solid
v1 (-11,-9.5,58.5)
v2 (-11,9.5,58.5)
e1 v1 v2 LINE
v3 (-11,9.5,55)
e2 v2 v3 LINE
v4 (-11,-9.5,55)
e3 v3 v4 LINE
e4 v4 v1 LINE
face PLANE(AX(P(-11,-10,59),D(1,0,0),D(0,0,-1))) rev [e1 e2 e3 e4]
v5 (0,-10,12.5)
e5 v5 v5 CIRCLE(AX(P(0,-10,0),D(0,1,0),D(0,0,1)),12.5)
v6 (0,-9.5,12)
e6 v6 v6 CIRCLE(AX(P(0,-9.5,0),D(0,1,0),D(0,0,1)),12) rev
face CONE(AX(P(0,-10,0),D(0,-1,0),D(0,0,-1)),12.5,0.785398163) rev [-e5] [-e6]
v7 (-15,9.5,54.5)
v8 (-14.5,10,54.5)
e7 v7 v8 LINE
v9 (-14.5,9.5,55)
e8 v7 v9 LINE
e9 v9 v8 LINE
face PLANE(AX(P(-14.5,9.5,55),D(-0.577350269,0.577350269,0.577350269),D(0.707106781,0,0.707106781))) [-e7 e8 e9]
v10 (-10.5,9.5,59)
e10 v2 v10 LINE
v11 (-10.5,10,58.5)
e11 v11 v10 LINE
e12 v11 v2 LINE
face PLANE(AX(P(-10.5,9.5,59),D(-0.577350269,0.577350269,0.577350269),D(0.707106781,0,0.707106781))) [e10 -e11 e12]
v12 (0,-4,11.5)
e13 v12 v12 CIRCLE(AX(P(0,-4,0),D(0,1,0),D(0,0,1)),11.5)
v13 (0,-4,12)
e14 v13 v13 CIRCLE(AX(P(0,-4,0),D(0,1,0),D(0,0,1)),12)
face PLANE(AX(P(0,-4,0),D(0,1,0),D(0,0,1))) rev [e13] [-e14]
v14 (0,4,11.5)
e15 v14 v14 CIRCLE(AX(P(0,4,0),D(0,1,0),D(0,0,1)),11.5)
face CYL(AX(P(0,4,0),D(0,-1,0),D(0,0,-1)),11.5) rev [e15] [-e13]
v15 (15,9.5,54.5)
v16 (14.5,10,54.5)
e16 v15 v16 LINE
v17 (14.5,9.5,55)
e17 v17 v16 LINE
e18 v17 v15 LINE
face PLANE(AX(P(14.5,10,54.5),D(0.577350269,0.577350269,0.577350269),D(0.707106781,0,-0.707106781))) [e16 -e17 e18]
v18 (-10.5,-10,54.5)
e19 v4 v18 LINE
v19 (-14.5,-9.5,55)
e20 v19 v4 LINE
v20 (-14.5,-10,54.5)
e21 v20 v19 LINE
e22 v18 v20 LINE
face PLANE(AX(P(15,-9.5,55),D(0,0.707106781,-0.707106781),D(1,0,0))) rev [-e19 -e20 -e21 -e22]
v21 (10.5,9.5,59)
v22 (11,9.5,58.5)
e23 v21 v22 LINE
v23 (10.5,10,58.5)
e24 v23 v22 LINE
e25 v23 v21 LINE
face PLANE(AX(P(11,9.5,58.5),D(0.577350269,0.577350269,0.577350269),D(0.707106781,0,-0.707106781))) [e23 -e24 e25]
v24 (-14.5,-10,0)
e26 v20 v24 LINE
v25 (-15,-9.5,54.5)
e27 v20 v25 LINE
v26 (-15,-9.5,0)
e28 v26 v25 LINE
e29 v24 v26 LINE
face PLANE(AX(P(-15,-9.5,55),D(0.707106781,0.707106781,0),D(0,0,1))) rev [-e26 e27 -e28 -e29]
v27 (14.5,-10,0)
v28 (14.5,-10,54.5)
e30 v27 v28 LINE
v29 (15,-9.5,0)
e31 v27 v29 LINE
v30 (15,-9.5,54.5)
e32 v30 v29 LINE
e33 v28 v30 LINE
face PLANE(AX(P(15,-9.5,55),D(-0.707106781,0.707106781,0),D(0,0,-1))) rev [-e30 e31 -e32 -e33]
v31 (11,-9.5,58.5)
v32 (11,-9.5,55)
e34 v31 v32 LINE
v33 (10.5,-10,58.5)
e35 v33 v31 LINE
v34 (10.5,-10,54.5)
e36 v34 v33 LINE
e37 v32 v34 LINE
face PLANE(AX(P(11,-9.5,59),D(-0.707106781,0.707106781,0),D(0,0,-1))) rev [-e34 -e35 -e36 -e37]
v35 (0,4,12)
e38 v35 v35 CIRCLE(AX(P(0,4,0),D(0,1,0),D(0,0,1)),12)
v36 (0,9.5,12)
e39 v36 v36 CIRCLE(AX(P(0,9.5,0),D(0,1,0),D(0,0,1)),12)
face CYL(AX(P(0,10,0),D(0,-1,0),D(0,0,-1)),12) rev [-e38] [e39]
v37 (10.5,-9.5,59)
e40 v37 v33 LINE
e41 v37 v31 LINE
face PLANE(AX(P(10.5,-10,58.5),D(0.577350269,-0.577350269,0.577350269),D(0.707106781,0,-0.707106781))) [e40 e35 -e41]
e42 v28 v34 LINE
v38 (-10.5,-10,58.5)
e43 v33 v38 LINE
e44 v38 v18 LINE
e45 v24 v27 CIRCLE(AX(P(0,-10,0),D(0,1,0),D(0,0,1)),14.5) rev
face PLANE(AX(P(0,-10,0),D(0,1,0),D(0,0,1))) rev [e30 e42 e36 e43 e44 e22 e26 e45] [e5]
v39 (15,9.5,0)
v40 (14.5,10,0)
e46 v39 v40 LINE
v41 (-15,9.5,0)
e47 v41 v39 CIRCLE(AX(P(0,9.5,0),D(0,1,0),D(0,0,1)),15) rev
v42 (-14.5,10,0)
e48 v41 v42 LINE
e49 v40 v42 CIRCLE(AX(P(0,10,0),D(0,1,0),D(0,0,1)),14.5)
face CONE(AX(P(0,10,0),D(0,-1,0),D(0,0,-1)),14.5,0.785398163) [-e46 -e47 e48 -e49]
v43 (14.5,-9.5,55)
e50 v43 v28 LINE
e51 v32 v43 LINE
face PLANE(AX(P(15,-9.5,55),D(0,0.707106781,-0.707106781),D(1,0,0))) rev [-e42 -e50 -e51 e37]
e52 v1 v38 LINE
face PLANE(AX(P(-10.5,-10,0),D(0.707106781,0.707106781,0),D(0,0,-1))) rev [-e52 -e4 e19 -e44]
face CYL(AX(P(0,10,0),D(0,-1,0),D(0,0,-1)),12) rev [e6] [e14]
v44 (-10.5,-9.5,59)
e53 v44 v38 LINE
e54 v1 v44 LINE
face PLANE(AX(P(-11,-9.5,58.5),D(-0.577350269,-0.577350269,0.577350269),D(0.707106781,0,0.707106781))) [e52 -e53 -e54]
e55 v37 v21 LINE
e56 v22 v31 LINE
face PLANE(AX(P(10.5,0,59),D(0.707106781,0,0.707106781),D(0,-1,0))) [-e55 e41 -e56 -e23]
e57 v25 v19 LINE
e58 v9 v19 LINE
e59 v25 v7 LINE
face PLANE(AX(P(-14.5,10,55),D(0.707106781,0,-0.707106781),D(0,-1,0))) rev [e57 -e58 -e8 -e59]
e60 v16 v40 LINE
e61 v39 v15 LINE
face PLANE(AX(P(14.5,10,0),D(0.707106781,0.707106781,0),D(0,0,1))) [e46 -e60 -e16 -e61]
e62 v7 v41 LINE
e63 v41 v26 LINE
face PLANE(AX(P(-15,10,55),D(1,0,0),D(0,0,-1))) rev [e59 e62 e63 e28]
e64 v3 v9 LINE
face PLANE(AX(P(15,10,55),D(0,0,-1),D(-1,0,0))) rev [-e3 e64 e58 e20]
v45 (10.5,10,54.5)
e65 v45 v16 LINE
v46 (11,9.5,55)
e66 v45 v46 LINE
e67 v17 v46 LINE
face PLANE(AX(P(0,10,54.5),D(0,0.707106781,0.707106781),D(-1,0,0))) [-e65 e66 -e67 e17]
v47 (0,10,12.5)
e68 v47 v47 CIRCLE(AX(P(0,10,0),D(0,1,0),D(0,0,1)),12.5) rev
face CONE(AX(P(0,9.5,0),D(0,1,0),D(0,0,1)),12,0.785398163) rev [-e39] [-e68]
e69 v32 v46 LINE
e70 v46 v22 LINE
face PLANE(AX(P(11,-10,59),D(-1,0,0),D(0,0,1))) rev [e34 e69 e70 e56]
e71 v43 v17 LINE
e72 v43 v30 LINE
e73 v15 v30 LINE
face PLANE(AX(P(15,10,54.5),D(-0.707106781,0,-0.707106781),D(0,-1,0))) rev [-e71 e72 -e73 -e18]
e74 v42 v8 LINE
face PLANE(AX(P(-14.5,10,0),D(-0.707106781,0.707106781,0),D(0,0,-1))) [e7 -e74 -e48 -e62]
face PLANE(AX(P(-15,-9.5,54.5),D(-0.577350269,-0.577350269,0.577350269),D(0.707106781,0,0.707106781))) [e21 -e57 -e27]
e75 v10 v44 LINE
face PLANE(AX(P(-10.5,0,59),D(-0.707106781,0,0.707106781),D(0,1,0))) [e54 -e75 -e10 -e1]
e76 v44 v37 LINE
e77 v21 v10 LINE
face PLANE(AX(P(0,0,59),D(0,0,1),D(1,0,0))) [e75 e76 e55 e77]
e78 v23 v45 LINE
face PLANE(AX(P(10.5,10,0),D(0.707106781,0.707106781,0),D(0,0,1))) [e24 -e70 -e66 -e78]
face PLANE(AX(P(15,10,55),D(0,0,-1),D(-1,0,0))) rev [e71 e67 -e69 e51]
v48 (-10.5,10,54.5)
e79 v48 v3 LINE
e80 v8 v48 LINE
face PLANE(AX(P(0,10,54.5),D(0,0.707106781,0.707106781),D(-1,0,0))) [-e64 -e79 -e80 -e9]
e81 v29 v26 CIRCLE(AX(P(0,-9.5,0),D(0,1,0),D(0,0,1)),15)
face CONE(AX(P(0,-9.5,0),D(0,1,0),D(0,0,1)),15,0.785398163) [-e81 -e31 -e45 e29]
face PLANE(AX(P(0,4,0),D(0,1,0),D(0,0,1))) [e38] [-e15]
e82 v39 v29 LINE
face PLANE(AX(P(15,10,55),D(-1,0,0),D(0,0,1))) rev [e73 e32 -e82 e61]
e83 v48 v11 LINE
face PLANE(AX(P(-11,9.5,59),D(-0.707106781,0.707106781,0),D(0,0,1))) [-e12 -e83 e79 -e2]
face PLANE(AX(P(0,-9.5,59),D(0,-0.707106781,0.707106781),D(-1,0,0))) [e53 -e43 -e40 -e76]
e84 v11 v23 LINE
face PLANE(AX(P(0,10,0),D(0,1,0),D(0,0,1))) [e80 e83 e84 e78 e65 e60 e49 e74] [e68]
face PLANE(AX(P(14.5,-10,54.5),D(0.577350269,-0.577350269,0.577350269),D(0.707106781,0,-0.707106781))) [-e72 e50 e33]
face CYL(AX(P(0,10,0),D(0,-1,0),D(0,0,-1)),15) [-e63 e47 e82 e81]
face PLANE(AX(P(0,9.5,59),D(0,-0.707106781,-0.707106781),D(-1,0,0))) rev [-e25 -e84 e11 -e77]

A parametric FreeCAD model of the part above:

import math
import FreeCAD as App
import Part
import Sketcher
from FreeCAD import Vector


def edges_at(feature, points):
    """Names of the edges that pass closest to the given points."""
    edges = feature.Shape.Edges
    near = lambda p: min(range(len(edges)), key=lambda i: edges[i].distToShape(Part.Vertex(*p))[0])
    return sorted({f"Edge{near(p) + 1}" for p in points})


def add_polygon(sketch, points):
    """Adds a closed chain of lines whose ends are joined by coincident constraints."""
    first, n = sketch.GeometryCount, len(points)
    for a, b in zip(points, points[1:] + points[:1]):
        sketch.addGeometry(Part.LineSegment(App.Vector(*a, 0), App.Vector(*b, 0)), False)
    for i in range(n):
        sketch.addConstraint(Sketcher.Constraint("Coincident", first + i, 2, first + (i + 1) % n, 1))

doc = App.newDocument("Part")
body = doc.addObject("PartDesign::Body", "Body")

# Sketch on XZ plane
sketch1 = body.newObject("Sketcher::SketchObject", "Sketch")
sketch1.AttachmentSupport = (doc.getObject("XZ_Plane"), [""])
sketch1.MapMode = "FlatFace"
sketch1.addGeometry(Part.LineSegment(Vector(-15, 55, 0), Vector(15, 55, 0)), False)
sketch1.addGeometry(Part.LineSegment(Vector(15, 55, 0), Vector(15, 0, 0)), False)
sketch1.addGeometry(Part.ArcOfCircle(Part.Circle(Vector(0, 0, 0), Vector(0, 0, 1), 15), math.radians(180), math.radians(360)), False)
sketch1.addGeometry(Part.LineSegment(Vector(-15, 0, 0), Vector(-15, 55, 0)), False)
sketch1.addGeometry(Part.Circle(Vector(0, 0, 0), Vector(0, 0, 1), 12), False)
sketch1.addConstraint(Sketcher.Constraint("Coincident", 0, 2, 1, 1))
sketch1.addConstraint(Sketcher.Constraint("Tangent", 1, 2, 2, 2))
sketch1.addConstraint(Sketcher.Constraint("Tangent", 2, 1, 3, 1))
sketch1.addConstraint(Sketcher.Constraint("Coincident", 3, 2, 0, 1))
sketch1.addConstraint(Sketcher.Constraint("Horizontal", 0))
sketch1.addConstraint(Sketcher.Constraint("Vertical", 1))
sketch1.addConstraint(Sketcher.Constraint("Vertical", 3))
sketch1.addConstraint(Sketcher.Constraint("Coincident", 2, 3, -1, 1))
sketch1.addConstraint(Sketcher.Constraint("Coincident", 4, 3, -1, 1))
sketch1.addConstraint(Sketcher.Constraint("Diameter", 4, 24.0))
sketch1.addConstraint(Sketcher.Constraint("Radius", 2, 15.0))
sketch1.addConstraint(Sketcher.Constraint("DistanceY", 1, 2, 1, 1, 55.0))
pad1 = body.newObject("PartDesign::Pad", "Pad")
pad1.Profile = sketch1
pad1.Length = 20
pad1.Midplane = True

# Sketch on XZ plane
sketch2 = body.newObject("Sketcher::SketchObject", "Sketch001")
sketch2.AttachmentSupport = (doc.getObject("XZ_Plane"), [""])
sketch2.MapMode = "FlatFace"
sketch2.addGeometry(Part.Circle(Vector(0, 0, 0), Vector(0, 0, 1), 12), False)
sketch2.addGeometry(Part.Circle(Vector(0, 0, 0), Vector(0, 0, 1), 12), False)
sketch2.addConstraint(Sketcher.Constraint("Coincident", 0, 3, -1, 1))
sketch2.addConstraint(Sketcher.Constraint("Coincident", 1, 3, -1, 1))
sketch2.addConstraint(Sketcher.Constraint("Diameter", 0, 24.0))
sketch2.addConstraint(Sketcher.Constraint("Diameter", 1, 23.0))
pad2 = body.newObject("PartDesign::Pad", "Pad001")
pad2.Profile = sketch2
pad2.Length = 8
pad2.Midplane = True

# Sketch on XY plane
sketch3 = body.newObject("Sketcher::SketchObject", "Sketch002")
sketch3.AttachmentSupport = (doc.getObject("XY_Plane"), [""])
sketch3.MapMode = "FlatFace"
sketch3.AttachmentOffset = App.Placement(Vector(0, 0, 55), App.Rotation())
add_polygon(sketch3, [(-11, 10), (-11, -10), (11, -10), (11, 10)])  # lines 0-3
sketch3.addConstraint(Sketcher.Constraint("Vertical", 0))
sketch3.addConstraint(Sketcher.Constraint("Horizontal", 1))
sketch3.addConstraint(Sketcher.Constraint("Vertical", 2))
sketch3.addConstraint(Sketcher.Constraint("Horizontal", 3))
sketch3.addConstraint(Sketcher.Constraint("Symmetric", 0, 2, 2, 2, -1, 1))
sketch3.addConstraint(Sketcher.Constraint("DistanceX", 1, 1, 1, 2, 22.0))
sketch3.addConstraint(Sketcher.Constraint("DistanceY", 0, 2, 0, 1, 20.0))
pad3 = body.newObject("PartDesign::Pad", "Pad002")
pad3.Profile = sketch3
pad3.Length = 4
doc.recompute()

chamfer = body.newObject("PartDesign::Chamfer", "Chamfer")
chamfer.Base = (pad3, edges_at(pad3, [
    (-15, 10, 27.5),
    (-12, -10, 0),
    (-12, 10, 0),
    (-13, 10, 55),
    (13, -10, 55),
    (13, 10, 55),
    (-11, 10, 57),
    (-11, -10, 57),
    (11, -10, 57),
    (11, 10, 57),
    (-11, 0, 59),
    (0, -10, 59),
    (11, 0, 59),
    (0, 10, 59),
    (15, 10, 27.5),
    (-13, -10, 55),
    (-15, -10, 27.5),
    (0, -10, -15),
    (15, -10, 27.5),
    (0, 10, -15),
    (15, 0, 55),
    (-15, 0, 55),
]))
chamfer.Size = 0.5

doc.recompute()
